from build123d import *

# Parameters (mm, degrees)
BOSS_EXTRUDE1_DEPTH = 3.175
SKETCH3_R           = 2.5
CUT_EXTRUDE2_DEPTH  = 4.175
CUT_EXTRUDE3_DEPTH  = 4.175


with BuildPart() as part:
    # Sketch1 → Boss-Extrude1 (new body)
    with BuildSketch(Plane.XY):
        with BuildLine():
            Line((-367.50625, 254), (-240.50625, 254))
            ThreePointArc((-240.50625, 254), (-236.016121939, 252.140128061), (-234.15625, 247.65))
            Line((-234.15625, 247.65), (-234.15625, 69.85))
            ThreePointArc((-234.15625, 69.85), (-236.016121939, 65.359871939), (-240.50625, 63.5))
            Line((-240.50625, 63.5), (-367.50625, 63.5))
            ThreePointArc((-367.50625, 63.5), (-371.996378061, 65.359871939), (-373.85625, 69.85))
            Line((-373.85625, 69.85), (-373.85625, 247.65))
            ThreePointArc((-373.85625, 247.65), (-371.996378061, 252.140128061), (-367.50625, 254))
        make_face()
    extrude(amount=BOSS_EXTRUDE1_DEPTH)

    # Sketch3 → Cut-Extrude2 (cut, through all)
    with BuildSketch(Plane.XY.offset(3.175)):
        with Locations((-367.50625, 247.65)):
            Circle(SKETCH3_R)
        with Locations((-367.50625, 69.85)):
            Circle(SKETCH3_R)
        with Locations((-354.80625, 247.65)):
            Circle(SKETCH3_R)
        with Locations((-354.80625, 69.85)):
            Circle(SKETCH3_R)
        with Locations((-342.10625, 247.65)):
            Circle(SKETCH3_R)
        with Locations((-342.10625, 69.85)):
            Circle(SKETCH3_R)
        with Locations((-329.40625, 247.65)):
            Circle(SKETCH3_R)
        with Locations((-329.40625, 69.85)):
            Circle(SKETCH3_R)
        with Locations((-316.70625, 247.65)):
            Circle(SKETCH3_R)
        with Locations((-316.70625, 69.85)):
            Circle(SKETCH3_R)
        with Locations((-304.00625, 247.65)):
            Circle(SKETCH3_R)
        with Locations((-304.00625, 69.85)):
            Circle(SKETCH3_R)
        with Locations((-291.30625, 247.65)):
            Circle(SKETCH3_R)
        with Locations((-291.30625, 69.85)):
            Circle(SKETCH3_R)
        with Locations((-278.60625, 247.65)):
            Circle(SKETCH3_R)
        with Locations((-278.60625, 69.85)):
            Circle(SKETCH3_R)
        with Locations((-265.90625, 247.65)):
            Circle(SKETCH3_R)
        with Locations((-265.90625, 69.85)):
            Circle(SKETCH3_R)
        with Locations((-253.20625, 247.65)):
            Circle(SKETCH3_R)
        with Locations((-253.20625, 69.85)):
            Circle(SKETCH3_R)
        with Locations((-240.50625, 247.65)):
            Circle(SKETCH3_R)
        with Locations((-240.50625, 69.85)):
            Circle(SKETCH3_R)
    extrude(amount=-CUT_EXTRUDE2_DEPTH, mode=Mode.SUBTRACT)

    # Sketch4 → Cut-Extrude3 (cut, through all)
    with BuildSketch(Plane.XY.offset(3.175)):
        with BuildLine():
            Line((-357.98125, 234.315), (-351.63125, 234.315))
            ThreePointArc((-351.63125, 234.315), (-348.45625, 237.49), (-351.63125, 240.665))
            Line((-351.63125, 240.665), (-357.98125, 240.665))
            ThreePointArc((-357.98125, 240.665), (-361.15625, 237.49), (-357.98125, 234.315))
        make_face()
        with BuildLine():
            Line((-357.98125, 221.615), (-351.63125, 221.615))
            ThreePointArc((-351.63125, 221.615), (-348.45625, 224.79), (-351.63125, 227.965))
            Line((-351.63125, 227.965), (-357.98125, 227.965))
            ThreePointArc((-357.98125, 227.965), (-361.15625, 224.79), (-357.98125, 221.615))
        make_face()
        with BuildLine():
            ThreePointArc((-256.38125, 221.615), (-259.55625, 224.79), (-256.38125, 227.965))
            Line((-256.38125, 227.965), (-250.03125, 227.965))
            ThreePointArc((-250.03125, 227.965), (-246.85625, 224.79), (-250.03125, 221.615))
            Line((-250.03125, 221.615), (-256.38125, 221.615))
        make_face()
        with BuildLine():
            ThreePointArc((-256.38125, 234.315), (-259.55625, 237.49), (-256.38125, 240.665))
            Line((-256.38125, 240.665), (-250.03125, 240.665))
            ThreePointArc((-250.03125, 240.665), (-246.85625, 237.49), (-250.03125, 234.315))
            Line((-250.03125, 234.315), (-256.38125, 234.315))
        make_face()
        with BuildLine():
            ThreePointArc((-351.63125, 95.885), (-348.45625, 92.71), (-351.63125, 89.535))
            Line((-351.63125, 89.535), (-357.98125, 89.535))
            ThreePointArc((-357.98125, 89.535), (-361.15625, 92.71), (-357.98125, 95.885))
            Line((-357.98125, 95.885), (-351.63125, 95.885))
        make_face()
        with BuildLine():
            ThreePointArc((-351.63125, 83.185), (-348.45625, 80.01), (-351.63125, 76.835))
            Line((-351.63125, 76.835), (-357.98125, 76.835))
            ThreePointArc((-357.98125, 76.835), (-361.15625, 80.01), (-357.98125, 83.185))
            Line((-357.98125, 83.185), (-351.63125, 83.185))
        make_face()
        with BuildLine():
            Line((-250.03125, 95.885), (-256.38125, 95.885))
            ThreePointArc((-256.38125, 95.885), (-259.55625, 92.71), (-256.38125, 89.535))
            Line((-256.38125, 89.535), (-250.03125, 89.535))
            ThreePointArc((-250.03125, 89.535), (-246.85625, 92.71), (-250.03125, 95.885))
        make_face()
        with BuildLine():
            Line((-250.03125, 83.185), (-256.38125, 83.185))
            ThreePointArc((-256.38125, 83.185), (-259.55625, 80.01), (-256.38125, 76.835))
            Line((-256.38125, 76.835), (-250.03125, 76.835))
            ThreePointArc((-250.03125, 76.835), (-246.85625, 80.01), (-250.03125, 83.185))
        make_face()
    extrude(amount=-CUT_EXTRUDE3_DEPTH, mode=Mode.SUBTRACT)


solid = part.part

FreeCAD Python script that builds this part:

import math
import FreeCAD as App
import Part
import Sketcher
Q = App.Units.Quantity

doc = App.newDocument("Part")
body = doc.addObject("PartDesign::Body", "Body")

# Sketch on XY plane
sketch1 = doc.addObject("Sketcher::SketchObject", "Sketch")
body.addObject(sketch1)
sketch1.AttachmentSupport = (doc.XY_Plane, [""])
sketch1.MapMode = "FlatFace"
sketch1.addGeometry([
    Part.LineSegment(App.Vector(-241, 254, 0), App.Vector(-368, 254, 0)),  # 0
    Part.ArcOfCircle(Part.Circle(App.Vector(-368, 248, 0), App.Vector(0, 0, 1), 6), math.radians(90), math.radians(180)),  # 1
    Part.LineSegment(App.Vector(-374, 248, 0), App.Vector(-374, 70, 0)),  # 2
    Part.ArcOfCircle(Part.Circle(App.Vector(-368, 70, 0), App.Vector(0, 0, 1), 6), math.radians(180), math.radians(270)),  # 3
    Part.LineSegment(App.Vector(-368, 64, 0), App.Vector(-241, 64, 0)),  # 4
    Part.ArcOfCircle(Part.Circle(App.Vector(-241, 70, 0), App.Vector(0, 0, 1), 6), math.radians(-90), math.radians(0)),  # 5
    Part.LineSegment(App.Vector(-234, 70, 0), App.Vector(-234, 248, 0)),  # 6
    Part.ArcOfCircle(Part.Circle(App.Vector(-241, 248, 0), App.Vector(0, 0, 1), 6), math.radians(0), math.radians(90)),  # 7
], False)
sketch1.addConstraint([
    Sketcher.Constraint("Tangent", 0, 2, 1, 1),
    Sketcher.Constraint("Tangent", 1, 2, 2, 1),
    Sketcher.Constraint("Tangent", 2, 2, 3, 1),
    Sketcher.Constraint("Tangent", 3, 2, 4, 1),
    Sketcher.Constraint("Tangent", 4, 2, 5, 1),
    Sketcher.Constraint("Tangent", 5, 2, 6, 1),
    Sketcher.Constraint("Tangent", 6, 2, 7, 1),
    Sketcher.Constraint("Tangent", 7, 2, 0, 1),
    Sketcher.Constraint("Horizontal", 0),
    Sketcher.Constraint("Vertical", 2),
    Sketcher.Constraint("Horizontal", 4),
    Sketcher.Constraint("Vertical", 6),
    Sketcher.Constraint("Equal", 1, 3),
    Sketcher.Constraint("Equal", 3, 5),
    Sketcher.Constraint("Equal", 5, 7),
    Sketcher.Constraint("DistanceX", 0, 2, 0, 1, Q("5 in")),
    Sketcher.Constraint("DistanceY", 2, 2, 2, 1, Q("7 in")),
    Sketcher.Constraint("Radius", 1, Q("0.25 in")),
    Sketcher.Constraint("DistanceY", -1, 1, 0, 2, Q("10 in")),
    Sketcher.Constraint("DistanceX", 1, 3, -1, 1, Q("14.46875 in")),
])
pad1 = doc.addObject("PartDesign::Pad", "Pad")
body.addObject(pad1)
pad1.Profile = sketch1
pad1.Length = Q("0.125 in")

# Sketch on XY plane
sketch2 = doc.addObject("Sketcher::SketchObject", "Sketch001")
body.addObject(sketch2)
sketch2.AttachmentSupport = (doc.XY_Plane, [""])
sketch2.MapMode = "FlatFace"
sketch2.AttachmentOffset = App.Placement(App.Vector(0, 0, 0.125 * 25.4), App.Rotation())
sketch2.addGeometry([
    Part.Circle(App.Vector(-367.5, 247.7, 0), App.Vector(0, 0, 1), 2.5),  # 0
    Part.Circle(App.Vector(-367.5, 69.8, 0), App.Vector(0, 0, 1), 2.5),  # 1
    Part.Circle(App.Vector(-354.8, 247.7, 0), App.Vector(0, 0, 1), 2.5),  # 2
    Part.Circle(App.Vector(-354.8, 69.8, 0), App.Vector(0, 0, 1), 2.5),  # 3
    Part.Circle(App.Vector(-342.1, 247.7, 0), App.Vector(0, 0, 1), 2.5),  # 4
    Part.Circle(App.Vector(-342.1, 69.8, 0), App.Vector(0, 0, 1), 2.5),  # 5
    Part.Circle(App.Vector(-329.4, 247.7, 0), App.Vector(0, 0, 1), 2.5),  # 6
    Part.Circle(App.Vector(-329.4, 69.8, 0), App.Vector(0, 0, 1), 2.5),  # 7
    Part.Circle(App.Vector(-316.7, 247.7, 0), App.Vector(0, 0, 1), 2.5),  # 8
    Part.Circle(App.Vector(-316.7, 69.8, 0), App.Vector(0, 0, 1), 2.5),  # 9
    Part.Circle(App.Vector(-304, 247.7, 0), App.Vector(0, 0, 1), 2.5),  # 10
    Part.Circle(App.Vector(-304, 69.8, 0), App.Vector(0, 0, 1), 2.5),  # 11
    Part.Circle(App.Vector(-291.3, 247.7, 0), App.Vector(0, 0, 1), 2.5),  # 12
    Part.Circle(App.Vector(-291.3, 69.8, 0), App.Vector(0, 0, 1), 2.5),  # 13
    Part.Circle(App.Vector(-278.6, 247.7, 0), App.Vector(0, 0, 1), 2.5),  # 14
    Part.Circle(App.Vector(-278.6, 69.8, 0), App.Vector(0, 0, 1), 2.5),  # 15
    Part.Circle(App.Vector(-265.9, 247.7, 0), App.Vector(0, 0, 1), 2.5),  # 16
    Part.Circle(App.Vector(-265.9, 69.8, 0), App.Vector(0, 0, 1), 2.5),  # 17
    Part.Circle(App.Vector(-253.2, 247.7, 0), App.Vector(0, 0, 1), 2.5),  # 18
    Part.Circle(App.Vector(-253.2, 69.8, 0), App.Vector(0, 0, 1), 2.5),  # 19
    Part.Circle(App.Vector(-240.5, 247.7, 0), App.Vector(0, 0, 1), 2.5),  # 20
    Part.Circle(App.Vector(-240.5, 69.8, 0), App.Vector(0, 0, 1), 2.5),  # 21
], False)
sketch2.addConstraint([
    Sketcher.Constraint("Equal", 0, 1),
    Sketcher.Constraint("Equal", 1, 2),
    Sketcher.Constraint("Equal", 2, 3),
    Sketcher.Constraint("Equal", 3, 4),
    Sketcher.Constraint("Equal", 4, 5),
    Sketcher.Constraint("Equal", 5, 6),
    Sketcher.Constraint("Equal", 6, 7),
    Sketcher.Constraint("Equal", 7, 8),
    Sketcher.Constraint("Equal", 8, 9),
    Sketcher.Constraint("Equal", 9, 10),
    Sketcher.Constraint("Equal", 10, 11),
    Sketcher.Constraint("Equal", 11, 12),
    Sketcher.Constraint("Equal", 12, 13),
    Sketcher.Constraint("Equal", 13, 14),
    Sketcher.Constraint("Equal", 14, 15),
    Sketcher.Constraint("Equal", 15, 16),
    Sketcher.Constraint("Equal", 16, 17),
    Sketcher.Constraint("Equal", 17, 18),
    Sketcher.Constraint("Equal", 18, 19),
    Sketcher.Constraint("Equal", 19, 20),
    Sketcher.Constraint("Equal", 20, 21),
    Sketcher.Constraint("Horizontal", 0, 3, 2, 3),
    Sketcher.Constraint("Horizontal", 1, 3, 3, 3),
    Sketcher.Constraint("Horizontal", 2, 3, 4, 3),
    Sketcher.Constraint("Horizontal", 3, 3, 5, 3),
    Sketcher.Constraint("Horizontal", 4, 3, 6, 3),
    Sketcher.Constraint("Horizontal", 5, 3, 7, 3),
    Sketcher.Constraint("Horizontal", 6, 3, 8, 3),
    Sketcher.Constraint("Horizontal", 7, 3, 9, 3),
    Sketcher.Constraint("Horizontal", 8, 3, 10, 3),
    Sketcher.Constraint("Horizontal", 9, 3, 11, 3),
    Sketcher.Constraint("Horizontal", 10, 3, 12, 3),
    Sketcher.Constraint("Horizontal", 11, 3, 13, 3),
    Sketcher.Constraint("Horizontal", 12, 3, 14, 3),
    Sketcher.Constraint("Horizontal", 13, 3, 15, 3),
    Sketcher.Constraint("Horizontal", 14, 3, 16, 3),
    Sketcher.Constraint("Horizontal", 15, 3, 17, 3),
    Sketcher.Constraint("Horizontal", 16, 3, 18, 3),
    Sketcher.Constraint("Horizontal", 17, 3, 19, 3),
    Sketcher.Constraint("Horizontal", 18, 3, 20, 3),
    Sketcher.Constraint("Horizontal", 19, 3, 21, 3),
    Sketcher.Constraint("Vertical", 0, 3, 1, 3),
    Sketcher.Constraint("Vertical", 2, 3, 3, 3),
    Sketcher.Constraint("Vertical", 4, 3, 5, 3),
    Sketcher.Constraint("Vertical", 6, 3, 7, 3),
    Sketcher.Constraint("Vertical", 8, 3, 9, 3),
    Sketcher.Constraint("Vertical", 10, 3, 11, 3),
    Sketcher.Constraint("Vertical", 12, 3, 13, 3),
    Sketcher.Constraint("Vertical", 14, 3, 15, 3),
    Sketcher.Constraint("Vertical", 16, 3, 17, 3),
    Sketcher.Constraint("Vertical", 18, 3, 19, 3),
    Sketcher.Constraint("Vertical", 20, 3, 21, 3),
    Sketcher.Constraint("DistanceY", 1, 3, 0, 3, Q("7 in")),
    Sketcher.Constraint("DistanceX", 0, 3, 4, 3, Q("1 in")),
    Sketcher.Constraint("DistanceX", 2, 3, 6, 3, Q("1 in")),
    Sketcher.Constraint("DistanceX", 4, 3, 8, 3, Q("1 in")),
    Sketcher.Constraint("DistanceX", 6, 3, 10, 3, Q("1 in")),
    Sketcher.Constraint("DistanceX", 8, 3, 12, 3, Q("1 in")),
    Sketcher.Constraint("DistanceX", 10, 3, 14, 3, Q("1 in")),
    Sketcher.Constraint("DistanceX", 12, 3, 16, 3, Q("1 in")),
    Sketcher.Constraint("DistanceX", 14, 3, 18, 3, Q("1 in")),
    Sketcher.Constraint("DistanceX", 16, 3, 20, 3, Q("1 in")),
    Sketcher.Constraint("DistanceX", 0, 3, 2, 3, Q("0.5 in")),
    Sketcher.Constraint("Diameter", 0, Q("5 mm")),
    Sketcher.Constraint("DistanceY", -1, 1, 0, 3, Q("9.75 in")),
    Sketcher.Constraint("DistanceX", 0, 3, -1, 1, Q("14.46875 in")),
])
pocket1 = doc.addObject("PartDesign::Pocket", "Pocket")
body.addObject(pocket1)
pocket1.Profile = sketch2
pocket1.Type = "ThroughAll"

# Sketch on XY plane
sketch3 = doc.addObject("Sketcher::SketchObject", "Sketch002")
body.addObject(sketch3)
sketch3.AttachmentSupport = (doc.XY_Plane, [""])
sketch3.MapMode = "FlatFace"
sketch3.AttachmentOffset = App.Placement(App.Vector(0, 0, 0.125 * 25.4), App.Rotation())
sketch3.addGeometry([
    Part.LineSegment(App.Vector(-358, 234.3, 0), App.Vector(-351.6, 234.3, 0)),  # 0
    Part.ArcOfCircle(Part.Circle(App.Vector(-351.6, 237.5, 0), App.Vector(0, 0, 1), 3.2), math.radians(-90), math.radians(90)),  # 1
    Part.LineSegment(App.Vector(-351.6, 240.7, 0), App.Vector(-358, 240.7, 0)),  # 2
    Part.ArcOfCircle(Part.Circle(App.Vector(-358, 237.5, 0), App.Vector(0, 0, 1), 3.2), math.radians(90), math.radians(270)),  # 3
    Part.LineSegment(App.Vector(-358, 221.6, 0), App.Vector(-351.6, 221.6, 0)),  # 4
    Part.ArcOfCircle(Part.Circle(App.Vector(-351.6, 224.8, 0), App.Vector(0, 0, 1), 3.2), math.radians(-90), math.radians(90)),  # 5
    Part.LineSegment(App.Vector(-351.6, 228, 0), App.Vector(-358, 228, 0)),  # 6
    Part.ArcOfCircle(Part.Circle(App.Vector(-358, 224.8, 0), App.Vector(0, 0, 1), 3.2), math.radians(90), math.radians(270)),  # 7
    Part.ArcOfCircle(Part.Circle(App.Vector(-256.4, 224.8, 0), App.Vector(0, 0, 1), 3.2), math.radians(90), math.radians(270)),  # 8
    Part.LineSegment(App.Vector(-256.4, 221.6, 0), App.Vector(-250, 221.6, 0)),  # 9
    Part.ArcOfCircle(Part.Circle(App.Vector(-250, 224.8, 0), App.Vector(0, 0, 1), 3.2), math.radians(-90), math.radians(90)),  # 10
    Part.LineSegment(App.Vector(-250, 228, 0), App.Vector(-256.4, 228, 0)),  # 11
    Part.ArcOfCircle(Part.Circle(App.Vector(-256.4, 237.5, 0), App.Vector(0, 0, 1), 3.2), math.radians(90), math.radians(270)),  # 12
    Part.LineSegment(App.Vector(-256.4, 234.3, 0), App.Vector(-250, 234.3, 0)),  # 13
    Part.ArcOfCircle(Part.Circle(App.Vector(-250, 237.5, 0), App.Vector(0, 0, 1), 3.2), math.radians(-90), math.radians(90)),  # 14
    Part.LineSegment(App.Vector(-250, 240.7, 0), App.Vector(-256.4, 240.7, 0)),  # 15
    Part.ArcOfCircle(Part.Circle(App.Vector(-351.6, 92.7, 0), App.Vector(0, 0, 1), 3.2), math.radians(-90), math.radians(90)),  # 16
    Part.LineSegment(App.Vector(-351.6, 95.9, 0), App.Vector(-358, 95.9, 0)),  # 17
    Part.ArcOfCircle(Part.Circle(App.Vector(-358, 92.7, 0), App.Vector(0, 0, 1), 3.2), math.radians(90), math.radians(270)),  # 18
    Part.LineSegment(App.Vector(-358, 89.5, 0), App.Vector(-351.6, 89.5, 0)),  # 19
    Part.ArcOfCircle(Part.Circle(App.Vector(-351.6, 80, 0), App.Vector(0, 0, 1), 3.2), math.radians(-90), math.radians(90)),  # 20
    Part.LineSegment(App.Vector(-351.6, 83.2, 0), App.Vector(-358, 83.2, 0)),  # 21
    Part.ArcOfCircle(Part.Circle(App.Vector(-358, 80, 0), App.Vector(0, 0, 1), 3.2), math.radians(90), math.radians(270)),  # 22
    Part.LineSegment(App.Vector(-358, 76.8, 0), App.Vector(-351.6, 76.8, 0)),  # 23
    Part.LineSegment(App.Vector(-250, 95.9, 0), App.Vector(-256.4, 95.9, 0)),  # 24
    Part.ArcOfCircle(Part.Circle(App.Vector(-256.4, 92.7, 0), App.Vector(0, 0, 1), 3.2), math.radians(90), math.radians(270)),  # 25
    Part.LineSegment(App.Vector(-256.4, 89.5, 0), App.Vector(-250, 89.5, 0)),  # 26
    Part.ArcOfCircle(Part.Circle(App.Vector(-250, 92.7, 0), App.Vector(0, 0, 1), 3.2), math.radians(-90), math.radians(90)),  # 27
    Part.LineSegment(App.Vector(-250, 83.2, 0), App.Vector(-256.4, 83.2, 0)),  # 28
    Part.ArcOfCircle(Part.Circle(App.Vector(-256.4, 80, 0), App.Vector(0, 0, 1), 3.2), math.radians(90), math.radians(270)),  # 29
    Part.LineSegment(App.Vector(-256.4, 76.8, 0), App.Vector(-250, 76.8, 0)),  # 30
    Part.ArcOfCircle(Part.Circle(App.Vector(-250, 80, 0), App.Vector(0, 0, 1), 3.2), math.radians(-90), math.radians(90)),  # 31
], False)
sketch3.addConstraint([
    Sketcher.Constraint("Tangent", 0, 2, 1, 1),
    Sketcher.Constraint("Tangent", 1, 2, 2, 1),
    Sketcher.Constraint("Tangent", 2, 2, 3, 1),
    Sketcher.Constraint("Tangent", 3, 2, 0, 1),
    Sketcher.Constraint("Tangent", 4, 2, 5, 1),
    Sketcher.Constraint("Tangent", 5, 2, 6, 1),
    Sketcher.Constraint("Tangent", 6, 2, 7, 1),
    Sketcher.Constraint("Tangent", 7, 2, 4, 1),
    Sketcher.Constraint("Tangent", 8, 2, 9, 1),
    Sketcher.Constraint("Tangent", 9, 2, 10, 1),
    Sketcher.Constraint("Tangent", 10, 2, 11, 1),
    Sketcher.Constraint("Tangent", 11, 2, 8, 1),
    Sketcher.Constraint("Tangent", 12, 2, 13, 1),
    Sketcher.Constraint("Tangent", 13, 2, 14, 1),
    Sketcher.Constraint("Tangent", 14, 2, 15, 1),
    Sketcher.Constraint("Tangent", 15, 2, 12, 1),
    Sketcher.Constraint("Tangent", 16, 2, 17, 1),
    Sketcher.Constraint("Tangent", 17, 2, 18, 1),
    Sketcher.Constraint("Tangent", 18, 2, 19, 1),
    Sketcher.Constraint("Tangent", 19, 2, 16, 1),
    Sketcher.Constraint("Tangent", 20, 2, 21, 1),
    Sketcher.Constraint("Tangent", 21, 2, 22, 1),
    Sketcher.Constraint("Tangent", 22, 2, 23, 1),
    Sketcher.Constraint("Tangent", 23, 2, 20, 1),
    Sketcher.Constraint("Tangent", 24, 2, 25, 1),
    Sketcher.Constraint("Tangent", 25, 2, 26, 1),
    Sketcher.Constraint("Tangent", 26, 2, 27, 1),
    Sketcher.Constraint("Tangent", 27, 2, 24, 1),
    Sketcher.Constraint("Tangent", 28, 2, 29, 1),
    Sketcher.Constraint("Tangent", 29, 2, 30, 1),
    Sketcher.Constraint("Tangent", 30, 2, 31, 1),
    Sketcher.Constraint("Tangent", 31, 2, 28, 1),
    Sketcher.Constraint("Horizontal", 0),
    Sketcher.Constraint("Horizontal", 2),
    Sketcher.Constraint("Horizontal", 4),
    Sketcher.Constraint("Horizontal", 6),
    Sketcher.Constraint("Horizontal", 9),
    Sketcher.Constraint("Horizontal", 11),
    Sketcher.Constraint("Horizontal", 13),
    Sketcher.Constraint("Horizontal", 15),
    Sketcher.Constraint("Horizontal", 17),
    Sketcher.Constraint("Horizontal", 19),
    Sketcher.Constraint("Horizontal", 21),
    Sketcher.Constraint("Horizontal", 23),
    Sketcher.Constraint("Horizontal", 24),
    Sketcher.Constraint("Horizontal", 26),
    Sketcher.Constraint("Horizontal", 28),
    Sketcher.Constraint("Horizontal", 30),
    Sketcher.Constraint("Equal", 3, 5),
    Sketcher.Constraint("Equal", 7, 8),
    Sketcher.Constraint("Equal", 10, 12),
    Sketcher.Constraint("Equal", 14, 16),
    Sketcher.Constraint("Equal", 18, 20),
    Sketcher.Constraint("Equal", 22, 25),
    Sketcher.Constraint("Equal", 27, 29),
    Sketcher.Constraint("Horizontal", 7, 3, 8, 3),
    Sketcher.Constraint("Horizontal", 3, 3, 12, 3),
    Sketcher.Constraint("Horizontal", 18, 3, 25, 3),
    Sketcher.Constraint("Horizontal", 22, 3, 29, 3),
    Sketcher.Constraint("Vertical", 1, 3, 5, 3),
    Sketcher.Constraint("Vertical", 3, 3, 7, 3),
    Sketcher.Constraint("Vertical", 8, 3, 12, 3),
    Sketcher.Constraint("Vertical", 10, 3, 14, 3),
    Sketcher.Constraint("Vertical", 5, 3, 16, 3),
    Sketcher.Constraint("Vertical", 7, 3, 18, 3),
    Sketcher.Constraint("Vertical", 16, 3, 20, 3),
    Sketcher.Constraint("Vertical", 18, 3, 22, 3),
    Sketcher.Constraint("Vertical", 12, 3, 25, 3),
    Sketcher.Constraint("Vertical", 14, 3, 27, 3),
    Sketcher.Constraint("Vertical", 25, 3, 29, 3),
    Sketcher.Constraint("Vertical", 27, 3, 31, 3),
    Sketcher.Constraint("Equal", 6, 9),
    Sketcher.Constraint("Radius", 1, Q("0.125 in")),
    Sketcher.Constraint("DistanceX", 7, 3, 8, 3, Q("4 in")),
    Sketcher.Constraint("DistanceX", 0, 1, 0, 2, Q("0.25 in")),
    Sketcher.Constraint("DistanceY", 5, 3, 1, 3, Q("0.5 in")),
    Sketcher.Constraint("DistanceY", 16, 3, 5, 3, Q("5.2 in")),
    Sketcher.Constraint("DistanceY", 20, 3, 16, 3, Q("0.5 in")),
    Sketcher.Constraint("DistanceY", -1, 1, 1, 3, Q("9.35 in")),
    Sketcher.Constraint("DistanceX", 1, 3, -1, 1, Q("13.84375 in")),
])
pocket2 = doc.addObject("PartDesign::Pocket", "Pocket001")
body.addObject(pocket2)
pocket2.Profile = sketch3
pocket2.Type = "ThroughAll"

doc.recompute()
